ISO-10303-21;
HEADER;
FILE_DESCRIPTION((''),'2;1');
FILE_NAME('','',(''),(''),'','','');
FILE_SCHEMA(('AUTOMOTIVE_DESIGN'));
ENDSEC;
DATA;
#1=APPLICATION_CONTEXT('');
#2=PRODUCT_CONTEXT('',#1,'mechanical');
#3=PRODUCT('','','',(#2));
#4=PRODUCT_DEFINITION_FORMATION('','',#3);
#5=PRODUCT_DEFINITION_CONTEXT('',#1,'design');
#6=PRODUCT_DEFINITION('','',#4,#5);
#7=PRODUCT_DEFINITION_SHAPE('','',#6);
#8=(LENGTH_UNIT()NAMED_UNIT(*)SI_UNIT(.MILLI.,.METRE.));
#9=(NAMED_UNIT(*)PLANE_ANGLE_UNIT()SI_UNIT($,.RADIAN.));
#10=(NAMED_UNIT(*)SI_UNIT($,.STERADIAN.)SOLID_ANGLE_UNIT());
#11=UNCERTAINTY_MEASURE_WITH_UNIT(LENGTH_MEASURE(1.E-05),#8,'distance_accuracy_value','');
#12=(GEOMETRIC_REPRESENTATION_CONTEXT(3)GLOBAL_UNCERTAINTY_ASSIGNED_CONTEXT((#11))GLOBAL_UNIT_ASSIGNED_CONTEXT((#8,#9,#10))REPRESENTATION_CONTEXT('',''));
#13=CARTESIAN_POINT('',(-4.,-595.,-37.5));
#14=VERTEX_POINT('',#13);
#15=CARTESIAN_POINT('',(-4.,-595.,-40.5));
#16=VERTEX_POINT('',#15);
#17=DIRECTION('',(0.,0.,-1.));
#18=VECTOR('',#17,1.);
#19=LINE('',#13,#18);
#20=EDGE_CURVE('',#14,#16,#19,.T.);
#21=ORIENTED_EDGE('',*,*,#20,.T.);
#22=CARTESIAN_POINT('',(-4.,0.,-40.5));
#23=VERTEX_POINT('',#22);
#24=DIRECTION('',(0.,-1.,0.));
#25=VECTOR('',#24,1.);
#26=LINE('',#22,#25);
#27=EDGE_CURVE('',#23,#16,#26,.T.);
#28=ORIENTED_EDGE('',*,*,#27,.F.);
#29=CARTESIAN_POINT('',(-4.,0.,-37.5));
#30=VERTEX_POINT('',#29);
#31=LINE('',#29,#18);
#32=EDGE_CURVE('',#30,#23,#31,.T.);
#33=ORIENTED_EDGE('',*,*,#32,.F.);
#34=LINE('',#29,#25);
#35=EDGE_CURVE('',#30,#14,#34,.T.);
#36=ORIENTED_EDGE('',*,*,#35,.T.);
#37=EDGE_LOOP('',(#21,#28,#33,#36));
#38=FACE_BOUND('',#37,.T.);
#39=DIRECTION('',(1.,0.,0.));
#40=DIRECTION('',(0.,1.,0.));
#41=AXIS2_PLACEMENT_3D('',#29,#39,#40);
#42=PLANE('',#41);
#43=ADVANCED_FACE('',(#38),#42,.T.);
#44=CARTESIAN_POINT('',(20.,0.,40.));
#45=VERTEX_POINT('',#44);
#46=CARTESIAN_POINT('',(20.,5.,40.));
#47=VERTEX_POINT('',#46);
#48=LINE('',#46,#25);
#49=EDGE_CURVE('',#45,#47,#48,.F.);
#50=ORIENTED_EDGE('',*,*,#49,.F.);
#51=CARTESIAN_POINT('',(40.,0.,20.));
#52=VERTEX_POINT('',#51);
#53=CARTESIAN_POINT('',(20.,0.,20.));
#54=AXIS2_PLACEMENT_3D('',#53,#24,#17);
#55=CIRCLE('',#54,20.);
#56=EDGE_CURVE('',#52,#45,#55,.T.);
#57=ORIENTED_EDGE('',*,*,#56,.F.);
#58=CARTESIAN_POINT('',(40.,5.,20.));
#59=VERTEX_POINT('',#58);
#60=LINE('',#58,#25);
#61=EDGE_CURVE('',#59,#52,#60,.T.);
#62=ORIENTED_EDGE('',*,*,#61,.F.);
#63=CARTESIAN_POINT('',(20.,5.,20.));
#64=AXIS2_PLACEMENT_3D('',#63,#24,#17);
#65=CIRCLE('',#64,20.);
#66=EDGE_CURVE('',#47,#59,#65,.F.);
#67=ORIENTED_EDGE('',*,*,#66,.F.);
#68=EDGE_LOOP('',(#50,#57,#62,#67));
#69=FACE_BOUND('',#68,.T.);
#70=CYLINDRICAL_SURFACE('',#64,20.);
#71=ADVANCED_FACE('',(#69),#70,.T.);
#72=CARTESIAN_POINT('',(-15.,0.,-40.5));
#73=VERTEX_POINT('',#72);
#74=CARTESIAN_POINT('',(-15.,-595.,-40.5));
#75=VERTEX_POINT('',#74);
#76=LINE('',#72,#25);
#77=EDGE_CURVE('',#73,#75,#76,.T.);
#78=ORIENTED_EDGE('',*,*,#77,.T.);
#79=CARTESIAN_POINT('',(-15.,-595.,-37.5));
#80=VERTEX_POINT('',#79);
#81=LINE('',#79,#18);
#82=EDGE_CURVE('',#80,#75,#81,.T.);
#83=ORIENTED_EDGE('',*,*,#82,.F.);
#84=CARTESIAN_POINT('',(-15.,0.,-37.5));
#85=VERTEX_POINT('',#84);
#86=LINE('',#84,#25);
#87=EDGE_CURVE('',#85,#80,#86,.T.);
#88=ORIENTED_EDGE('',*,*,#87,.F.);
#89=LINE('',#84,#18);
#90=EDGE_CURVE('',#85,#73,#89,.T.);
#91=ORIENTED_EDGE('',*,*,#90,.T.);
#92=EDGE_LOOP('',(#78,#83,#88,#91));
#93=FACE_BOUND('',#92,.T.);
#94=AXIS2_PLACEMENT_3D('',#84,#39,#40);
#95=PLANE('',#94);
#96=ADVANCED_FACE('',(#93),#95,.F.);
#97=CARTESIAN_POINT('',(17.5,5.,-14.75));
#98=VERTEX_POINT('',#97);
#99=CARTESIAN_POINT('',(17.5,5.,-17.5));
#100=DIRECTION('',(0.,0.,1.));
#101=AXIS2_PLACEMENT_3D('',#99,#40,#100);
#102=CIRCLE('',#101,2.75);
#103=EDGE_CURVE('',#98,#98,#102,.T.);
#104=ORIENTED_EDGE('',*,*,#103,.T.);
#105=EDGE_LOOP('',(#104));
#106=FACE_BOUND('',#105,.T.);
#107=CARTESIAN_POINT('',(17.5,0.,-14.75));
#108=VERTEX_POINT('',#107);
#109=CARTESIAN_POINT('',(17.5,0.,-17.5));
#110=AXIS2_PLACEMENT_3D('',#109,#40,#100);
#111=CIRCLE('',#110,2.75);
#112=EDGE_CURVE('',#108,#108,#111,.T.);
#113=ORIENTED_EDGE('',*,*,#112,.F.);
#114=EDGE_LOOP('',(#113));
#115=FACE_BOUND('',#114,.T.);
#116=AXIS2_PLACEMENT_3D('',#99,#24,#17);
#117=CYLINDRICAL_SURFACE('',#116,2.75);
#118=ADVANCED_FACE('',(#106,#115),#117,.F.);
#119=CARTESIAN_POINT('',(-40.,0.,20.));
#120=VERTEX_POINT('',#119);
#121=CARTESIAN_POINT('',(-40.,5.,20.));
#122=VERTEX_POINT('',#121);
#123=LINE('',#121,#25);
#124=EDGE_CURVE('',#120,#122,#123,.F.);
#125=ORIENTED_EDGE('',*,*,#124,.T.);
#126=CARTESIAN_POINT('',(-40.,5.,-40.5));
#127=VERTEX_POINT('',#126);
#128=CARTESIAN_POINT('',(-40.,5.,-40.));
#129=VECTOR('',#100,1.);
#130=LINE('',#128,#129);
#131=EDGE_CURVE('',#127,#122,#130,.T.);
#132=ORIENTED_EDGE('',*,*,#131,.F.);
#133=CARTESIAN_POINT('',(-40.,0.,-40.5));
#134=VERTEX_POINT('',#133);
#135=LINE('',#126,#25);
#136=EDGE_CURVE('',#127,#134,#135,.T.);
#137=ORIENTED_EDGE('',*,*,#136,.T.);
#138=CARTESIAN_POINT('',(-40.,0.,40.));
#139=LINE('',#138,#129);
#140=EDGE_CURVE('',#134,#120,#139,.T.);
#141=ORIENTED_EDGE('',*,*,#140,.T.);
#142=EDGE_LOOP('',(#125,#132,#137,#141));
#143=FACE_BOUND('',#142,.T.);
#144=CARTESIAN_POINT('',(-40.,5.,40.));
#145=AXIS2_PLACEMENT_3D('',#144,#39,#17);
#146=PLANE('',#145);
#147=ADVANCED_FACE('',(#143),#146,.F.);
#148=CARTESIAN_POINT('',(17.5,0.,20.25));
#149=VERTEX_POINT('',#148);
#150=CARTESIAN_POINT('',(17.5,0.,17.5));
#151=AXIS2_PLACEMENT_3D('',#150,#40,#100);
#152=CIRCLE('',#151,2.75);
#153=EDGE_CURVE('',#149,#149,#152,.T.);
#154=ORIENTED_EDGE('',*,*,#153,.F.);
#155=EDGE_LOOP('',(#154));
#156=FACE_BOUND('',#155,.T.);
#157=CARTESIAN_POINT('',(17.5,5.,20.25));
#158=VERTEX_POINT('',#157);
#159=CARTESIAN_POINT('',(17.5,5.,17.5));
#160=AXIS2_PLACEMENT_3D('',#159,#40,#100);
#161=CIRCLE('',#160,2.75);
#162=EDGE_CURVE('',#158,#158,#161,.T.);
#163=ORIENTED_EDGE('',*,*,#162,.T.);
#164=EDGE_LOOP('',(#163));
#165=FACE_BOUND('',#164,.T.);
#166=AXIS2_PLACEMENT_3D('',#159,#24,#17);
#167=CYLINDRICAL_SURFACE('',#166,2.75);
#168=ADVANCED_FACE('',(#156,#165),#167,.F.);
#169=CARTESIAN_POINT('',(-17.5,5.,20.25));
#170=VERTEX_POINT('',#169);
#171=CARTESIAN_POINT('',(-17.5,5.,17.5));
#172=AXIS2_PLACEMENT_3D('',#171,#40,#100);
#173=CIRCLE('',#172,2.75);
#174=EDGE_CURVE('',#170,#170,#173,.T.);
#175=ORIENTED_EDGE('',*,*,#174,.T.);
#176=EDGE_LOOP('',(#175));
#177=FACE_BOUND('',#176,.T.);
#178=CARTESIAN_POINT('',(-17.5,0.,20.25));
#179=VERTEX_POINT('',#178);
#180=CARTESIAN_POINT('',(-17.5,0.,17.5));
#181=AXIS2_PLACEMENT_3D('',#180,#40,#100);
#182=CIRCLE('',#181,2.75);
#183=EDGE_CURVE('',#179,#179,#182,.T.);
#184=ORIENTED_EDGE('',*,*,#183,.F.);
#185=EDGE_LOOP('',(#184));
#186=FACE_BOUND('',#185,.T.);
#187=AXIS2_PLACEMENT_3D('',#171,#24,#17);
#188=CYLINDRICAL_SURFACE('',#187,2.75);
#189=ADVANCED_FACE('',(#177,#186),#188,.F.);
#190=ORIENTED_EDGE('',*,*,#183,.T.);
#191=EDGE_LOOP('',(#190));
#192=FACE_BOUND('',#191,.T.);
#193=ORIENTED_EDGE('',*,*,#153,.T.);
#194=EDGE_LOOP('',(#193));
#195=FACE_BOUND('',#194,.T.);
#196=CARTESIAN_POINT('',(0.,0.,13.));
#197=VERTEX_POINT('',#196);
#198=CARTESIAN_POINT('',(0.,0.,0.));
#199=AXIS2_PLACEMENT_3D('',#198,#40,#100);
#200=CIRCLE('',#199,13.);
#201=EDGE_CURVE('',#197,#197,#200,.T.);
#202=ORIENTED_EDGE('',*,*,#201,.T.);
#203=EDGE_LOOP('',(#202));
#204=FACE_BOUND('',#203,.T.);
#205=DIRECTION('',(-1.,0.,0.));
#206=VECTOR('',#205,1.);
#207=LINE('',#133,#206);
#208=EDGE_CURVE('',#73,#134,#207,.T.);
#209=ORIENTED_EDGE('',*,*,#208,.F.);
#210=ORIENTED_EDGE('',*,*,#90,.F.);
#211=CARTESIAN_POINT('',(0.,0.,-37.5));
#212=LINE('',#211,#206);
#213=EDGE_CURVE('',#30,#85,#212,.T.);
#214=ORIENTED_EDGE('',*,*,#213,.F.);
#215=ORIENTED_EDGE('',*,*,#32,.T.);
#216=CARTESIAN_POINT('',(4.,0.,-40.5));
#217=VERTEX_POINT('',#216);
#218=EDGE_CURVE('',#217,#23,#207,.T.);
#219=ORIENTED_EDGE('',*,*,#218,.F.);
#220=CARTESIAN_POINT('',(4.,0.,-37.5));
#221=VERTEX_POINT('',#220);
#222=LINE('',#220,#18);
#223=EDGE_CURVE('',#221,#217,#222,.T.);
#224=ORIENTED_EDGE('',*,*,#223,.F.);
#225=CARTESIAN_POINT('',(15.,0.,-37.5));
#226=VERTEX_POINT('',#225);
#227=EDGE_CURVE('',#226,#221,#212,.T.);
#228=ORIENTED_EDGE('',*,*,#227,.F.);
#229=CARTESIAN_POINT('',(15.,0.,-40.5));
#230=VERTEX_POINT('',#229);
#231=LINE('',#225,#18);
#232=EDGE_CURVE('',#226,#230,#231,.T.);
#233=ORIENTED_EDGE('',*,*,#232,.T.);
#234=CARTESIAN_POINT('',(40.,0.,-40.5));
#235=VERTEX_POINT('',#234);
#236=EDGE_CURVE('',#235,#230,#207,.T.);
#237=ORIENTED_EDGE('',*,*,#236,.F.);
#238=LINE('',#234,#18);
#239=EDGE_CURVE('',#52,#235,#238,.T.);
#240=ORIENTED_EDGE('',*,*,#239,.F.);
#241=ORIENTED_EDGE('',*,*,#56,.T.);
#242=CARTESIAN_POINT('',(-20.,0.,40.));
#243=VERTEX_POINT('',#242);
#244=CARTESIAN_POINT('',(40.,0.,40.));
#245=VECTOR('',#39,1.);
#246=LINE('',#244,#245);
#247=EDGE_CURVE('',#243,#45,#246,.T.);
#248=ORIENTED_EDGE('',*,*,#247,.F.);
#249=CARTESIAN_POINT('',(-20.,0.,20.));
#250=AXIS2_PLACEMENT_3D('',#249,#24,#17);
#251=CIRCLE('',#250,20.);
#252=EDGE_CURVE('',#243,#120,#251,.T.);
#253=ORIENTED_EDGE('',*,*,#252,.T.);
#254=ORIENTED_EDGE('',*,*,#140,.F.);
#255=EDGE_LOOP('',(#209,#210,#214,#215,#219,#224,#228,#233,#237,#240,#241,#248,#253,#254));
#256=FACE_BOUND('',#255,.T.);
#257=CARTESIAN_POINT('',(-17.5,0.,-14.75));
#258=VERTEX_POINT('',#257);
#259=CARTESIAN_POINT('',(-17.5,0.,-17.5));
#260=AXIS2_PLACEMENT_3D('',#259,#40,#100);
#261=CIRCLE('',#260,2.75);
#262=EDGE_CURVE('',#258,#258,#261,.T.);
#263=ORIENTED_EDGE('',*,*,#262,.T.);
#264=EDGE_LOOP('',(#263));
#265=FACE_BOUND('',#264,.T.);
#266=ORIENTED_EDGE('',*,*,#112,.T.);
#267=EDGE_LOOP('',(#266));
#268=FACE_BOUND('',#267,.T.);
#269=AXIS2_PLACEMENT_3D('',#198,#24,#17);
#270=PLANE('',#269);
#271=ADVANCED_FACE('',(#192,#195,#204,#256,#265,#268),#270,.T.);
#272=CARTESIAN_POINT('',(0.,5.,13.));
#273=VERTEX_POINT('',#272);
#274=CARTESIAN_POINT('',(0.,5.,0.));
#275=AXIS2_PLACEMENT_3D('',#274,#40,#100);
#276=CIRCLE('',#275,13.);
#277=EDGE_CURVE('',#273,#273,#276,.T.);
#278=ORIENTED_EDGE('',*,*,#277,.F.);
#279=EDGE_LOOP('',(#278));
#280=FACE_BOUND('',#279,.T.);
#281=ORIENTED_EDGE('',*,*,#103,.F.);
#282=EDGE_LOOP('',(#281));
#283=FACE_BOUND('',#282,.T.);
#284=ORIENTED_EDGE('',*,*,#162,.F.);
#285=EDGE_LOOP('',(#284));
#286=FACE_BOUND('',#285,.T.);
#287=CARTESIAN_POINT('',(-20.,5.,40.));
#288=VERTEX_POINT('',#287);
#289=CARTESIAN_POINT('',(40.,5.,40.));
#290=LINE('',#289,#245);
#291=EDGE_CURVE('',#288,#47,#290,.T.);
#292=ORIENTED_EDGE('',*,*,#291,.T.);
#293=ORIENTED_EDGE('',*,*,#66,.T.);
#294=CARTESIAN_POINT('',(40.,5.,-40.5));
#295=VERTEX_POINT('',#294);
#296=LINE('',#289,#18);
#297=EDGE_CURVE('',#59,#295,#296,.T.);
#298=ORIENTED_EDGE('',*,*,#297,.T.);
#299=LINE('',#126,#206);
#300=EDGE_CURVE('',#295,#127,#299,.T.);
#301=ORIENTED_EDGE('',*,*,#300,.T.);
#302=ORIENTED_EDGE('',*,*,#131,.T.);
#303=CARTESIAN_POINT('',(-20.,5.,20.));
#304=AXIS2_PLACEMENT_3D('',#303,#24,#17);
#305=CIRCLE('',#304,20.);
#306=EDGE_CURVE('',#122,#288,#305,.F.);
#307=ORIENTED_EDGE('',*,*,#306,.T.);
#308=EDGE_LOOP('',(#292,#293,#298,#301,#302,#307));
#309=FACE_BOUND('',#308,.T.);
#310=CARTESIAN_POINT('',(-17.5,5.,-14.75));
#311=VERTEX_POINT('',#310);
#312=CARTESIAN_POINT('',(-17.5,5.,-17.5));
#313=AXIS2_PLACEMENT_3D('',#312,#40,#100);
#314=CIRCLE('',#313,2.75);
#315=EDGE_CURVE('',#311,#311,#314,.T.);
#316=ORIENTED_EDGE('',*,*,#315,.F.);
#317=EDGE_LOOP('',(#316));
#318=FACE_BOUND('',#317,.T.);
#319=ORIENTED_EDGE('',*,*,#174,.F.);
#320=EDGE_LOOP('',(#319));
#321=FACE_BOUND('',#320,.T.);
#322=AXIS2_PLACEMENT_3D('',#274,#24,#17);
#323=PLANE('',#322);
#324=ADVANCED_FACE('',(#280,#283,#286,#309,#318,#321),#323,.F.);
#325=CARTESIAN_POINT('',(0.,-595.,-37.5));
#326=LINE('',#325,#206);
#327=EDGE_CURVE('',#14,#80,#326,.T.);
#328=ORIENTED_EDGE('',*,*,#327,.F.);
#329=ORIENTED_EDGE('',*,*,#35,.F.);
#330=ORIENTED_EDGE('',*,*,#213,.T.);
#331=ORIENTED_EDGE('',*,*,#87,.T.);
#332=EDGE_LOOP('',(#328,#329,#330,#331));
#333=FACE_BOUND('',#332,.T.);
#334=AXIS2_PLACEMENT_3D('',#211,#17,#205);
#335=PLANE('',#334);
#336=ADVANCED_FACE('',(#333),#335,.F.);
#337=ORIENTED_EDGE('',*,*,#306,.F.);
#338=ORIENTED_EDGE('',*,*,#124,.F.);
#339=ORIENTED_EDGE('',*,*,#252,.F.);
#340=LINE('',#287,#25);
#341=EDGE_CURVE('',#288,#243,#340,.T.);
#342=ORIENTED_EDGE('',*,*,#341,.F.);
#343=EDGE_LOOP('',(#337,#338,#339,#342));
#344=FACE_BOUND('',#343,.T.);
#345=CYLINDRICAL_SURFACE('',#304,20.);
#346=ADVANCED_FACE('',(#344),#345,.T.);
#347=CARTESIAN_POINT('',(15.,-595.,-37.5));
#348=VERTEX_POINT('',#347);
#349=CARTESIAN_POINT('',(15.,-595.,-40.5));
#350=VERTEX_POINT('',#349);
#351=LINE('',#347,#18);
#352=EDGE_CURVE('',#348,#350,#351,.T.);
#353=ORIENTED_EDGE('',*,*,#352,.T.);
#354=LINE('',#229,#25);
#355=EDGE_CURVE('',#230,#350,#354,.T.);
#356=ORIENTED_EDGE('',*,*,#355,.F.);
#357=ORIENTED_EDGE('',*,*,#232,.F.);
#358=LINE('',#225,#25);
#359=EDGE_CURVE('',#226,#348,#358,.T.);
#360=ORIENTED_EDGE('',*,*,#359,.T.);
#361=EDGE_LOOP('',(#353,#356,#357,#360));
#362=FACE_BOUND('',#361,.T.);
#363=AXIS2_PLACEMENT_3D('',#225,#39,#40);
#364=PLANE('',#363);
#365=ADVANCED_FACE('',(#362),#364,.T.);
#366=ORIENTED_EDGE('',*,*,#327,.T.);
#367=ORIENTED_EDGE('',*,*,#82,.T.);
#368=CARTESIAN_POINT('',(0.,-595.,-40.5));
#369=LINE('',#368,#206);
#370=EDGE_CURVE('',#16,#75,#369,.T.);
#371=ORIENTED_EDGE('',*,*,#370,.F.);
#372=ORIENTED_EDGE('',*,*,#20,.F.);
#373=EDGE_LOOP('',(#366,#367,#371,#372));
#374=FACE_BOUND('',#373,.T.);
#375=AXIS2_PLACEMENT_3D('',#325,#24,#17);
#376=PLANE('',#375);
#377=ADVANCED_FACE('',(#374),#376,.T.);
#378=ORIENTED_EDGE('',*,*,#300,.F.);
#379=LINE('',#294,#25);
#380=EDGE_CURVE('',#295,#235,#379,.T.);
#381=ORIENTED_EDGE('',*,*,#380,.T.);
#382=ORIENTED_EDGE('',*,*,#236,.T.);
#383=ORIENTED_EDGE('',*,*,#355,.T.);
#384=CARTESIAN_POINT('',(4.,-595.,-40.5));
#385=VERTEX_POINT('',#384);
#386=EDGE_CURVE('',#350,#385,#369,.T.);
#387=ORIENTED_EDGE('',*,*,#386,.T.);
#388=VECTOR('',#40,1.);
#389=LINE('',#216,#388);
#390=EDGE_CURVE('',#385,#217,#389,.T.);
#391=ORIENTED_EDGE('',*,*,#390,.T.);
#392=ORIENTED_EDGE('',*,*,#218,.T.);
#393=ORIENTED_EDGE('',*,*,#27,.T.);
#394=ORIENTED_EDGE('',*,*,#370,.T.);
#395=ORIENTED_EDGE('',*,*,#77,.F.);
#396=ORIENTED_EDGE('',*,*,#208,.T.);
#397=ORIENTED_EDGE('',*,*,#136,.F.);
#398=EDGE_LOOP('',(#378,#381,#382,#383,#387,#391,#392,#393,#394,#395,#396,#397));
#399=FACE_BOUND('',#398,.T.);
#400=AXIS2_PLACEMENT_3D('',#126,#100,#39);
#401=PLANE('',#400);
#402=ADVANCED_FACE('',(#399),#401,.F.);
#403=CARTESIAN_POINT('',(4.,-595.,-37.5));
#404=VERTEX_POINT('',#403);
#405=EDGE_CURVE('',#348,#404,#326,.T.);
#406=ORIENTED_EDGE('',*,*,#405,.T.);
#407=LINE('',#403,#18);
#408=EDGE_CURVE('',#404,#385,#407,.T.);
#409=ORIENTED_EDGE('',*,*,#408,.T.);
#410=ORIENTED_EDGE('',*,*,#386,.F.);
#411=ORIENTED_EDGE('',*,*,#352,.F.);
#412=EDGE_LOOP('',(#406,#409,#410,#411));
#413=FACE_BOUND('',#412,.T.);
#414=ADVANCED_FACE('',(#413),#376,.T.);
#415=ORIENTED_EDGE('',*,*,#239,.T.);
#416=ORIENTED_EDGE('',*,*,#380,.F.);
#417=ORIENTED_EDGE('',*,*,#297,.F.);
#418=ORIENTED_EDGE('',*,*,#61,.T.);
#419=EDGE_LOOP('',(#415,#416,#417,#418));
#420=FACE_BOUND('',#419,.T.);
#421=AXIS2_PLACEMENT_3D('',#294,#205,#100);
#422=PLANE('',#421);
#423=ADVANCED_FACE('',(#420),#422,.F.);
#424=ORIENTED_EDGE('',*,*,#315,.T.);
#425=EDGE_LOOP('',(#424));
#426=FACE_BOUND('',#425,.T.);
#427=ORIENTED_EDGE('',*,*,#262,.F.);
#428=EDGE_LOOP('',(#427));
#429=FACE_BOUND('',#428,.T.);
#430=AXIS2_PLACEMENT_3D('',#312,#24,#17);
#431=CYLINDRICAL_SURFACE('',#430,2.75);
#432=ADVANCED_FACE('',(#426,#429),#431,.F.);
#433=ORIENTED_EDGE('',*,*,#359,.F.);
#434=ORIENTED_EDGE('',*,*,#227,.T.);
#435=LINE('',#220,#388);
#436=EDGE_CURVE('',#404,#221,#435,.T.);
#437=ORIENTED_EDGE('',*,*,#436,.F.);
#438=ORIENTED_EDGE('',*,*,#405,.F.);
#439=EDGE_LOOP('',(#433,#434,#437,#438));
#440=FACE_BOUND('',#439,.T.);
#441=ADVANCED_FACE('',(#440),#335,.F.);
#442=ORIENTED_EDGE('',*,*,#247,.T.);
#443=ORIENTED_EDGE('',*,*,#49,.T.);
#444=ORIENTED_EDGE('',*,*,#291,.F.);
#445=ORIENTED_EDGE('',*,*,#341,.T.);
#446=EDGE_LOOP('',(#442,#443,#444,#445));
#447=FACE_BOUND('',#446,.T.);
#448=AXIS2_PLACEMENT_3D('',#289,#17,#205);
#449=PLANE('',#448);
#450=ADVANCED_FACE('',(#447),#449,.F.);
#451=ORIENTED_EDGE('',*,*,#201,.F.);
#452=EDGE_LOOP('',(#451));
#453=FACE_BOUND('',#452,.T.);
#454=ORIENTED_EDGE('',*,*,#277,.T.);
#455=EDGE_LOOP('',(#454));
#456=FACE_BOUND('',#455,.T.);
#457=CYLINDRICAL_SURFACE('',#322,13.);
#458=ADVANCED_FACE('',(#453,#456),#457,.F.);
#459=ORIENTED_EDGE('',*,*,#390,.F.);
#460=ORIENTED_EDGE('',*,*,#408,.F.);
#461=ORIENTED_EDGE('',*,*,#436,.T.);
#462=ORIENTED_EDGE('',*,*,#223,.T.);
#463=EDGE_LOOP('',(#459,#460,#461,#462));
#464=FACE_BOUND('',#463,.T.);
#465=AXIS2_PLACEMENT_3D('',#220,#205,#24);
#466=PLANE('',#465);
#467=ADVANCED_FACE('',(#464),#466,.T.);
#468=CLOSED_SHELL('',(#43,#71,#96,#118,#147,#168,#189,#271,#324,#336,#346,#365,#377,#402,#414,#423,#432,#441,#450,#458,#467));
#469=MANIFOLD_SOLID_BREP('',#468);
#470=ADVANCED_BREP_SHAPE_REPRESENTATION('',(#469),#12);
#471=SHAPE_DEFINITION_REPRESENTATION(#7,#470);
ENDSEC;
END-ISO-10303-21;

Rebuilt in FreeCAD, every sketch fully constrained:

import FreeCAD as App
import Part
import Sketcher

V = App.Vector


def edges_at(feature, points):
    """Names of the edges that pass closest to the given points."""
    edges = feature.Shape.Edges
    near = lambda p: min(range(len(edges)), key=lambda i: edges[i].distToShape(Part.Vertex(*p))[0])
    return sorted({f"Edge{near(p) + 1}" for p in points})


def add_polygon(sketch, points):
    """Adds a closed chain of lines whose ends are joined by coincident constraints."""
    first, n = sketch.GeometryCount, len(points)
    for a, b in zip(points, points[1:] + points[:1]):
        sketch.addGeometry(Part.LineSegment(App.Vector(*a, 0), App.Vector(*b, 0)), False)
    for i in range(n):
        sketch.addConstraint(Sketcher.Constraint("Coincident", first + i, 2, first + (i + 1) % n, 1))

doc = App.newDocument("Part")
body = doc.addObject("PartDesign::Body", "Body")

# Sketch on XZ plane
sketch1 = body.newObject("Sketcher::SketchObject", "Sketch")
sketch1.AttachmentSupport = (doc.getObject("XZ_Plane"), [""])
sketch1.MapMode = "FlatFace"
add_polygon(sketch1, [(-40, 40), (40, 40), (40, -40.5), (-40, -40.5)])  # lines 0-3
sketch1.addGeometry(Part.Circle(V(17.5, 17.5, 0), V(0, 0, 1), 2.75), False)  # 4
sketch1.addGeometry(Part.Circle(V(-17.5, 17.5, 0), V(0, 0, 1), 2.75), False)  # 5
sketch1.addGeometry(Part.Circle(V(17.5, -17.5, 0), V(0, 0, 1), 2.75), False)  # 6
sketch1.addGeometry(Part.Circle(V(0, 0, 0), V(0, 0, 1), 13), False)  # 7
sketch1.addGeometry(Part.Circle(V(-17.5, -17.5, 0), V(0, 0, 1), 2.75), False)  # 8
sketch1.addConstraint([
    Sketcher.Constraint("Horizontal", 0),
    Sketcher.Constraint("Vertical", 1),
    Sketcher.Constraint("Horizontal", 2),
    Sketcher.Constraint("Vertical", 3),
    Sketcher.Constraint("Coincident", 7, 3, -1, 1),
    Sketcher.Constraint("Equal", 4, 5),
    Sketcher.Constraint("Equal", 5, 6),
    Sketcher.Constraint("Equal", 6, 8),
    Sketcher.Constraint("Symmetric", 5, 3, 6, 3, -1, 1),
    Sketcher.Constraint("Symmetric", 4, 3, 8, 3, -1, 1),
    Sketcher.Constraint("Symmetric", 4, 3, 5, 3, -2),
    Sketcher.Constraint("Diameter", 7, 26.0),
    Sketcher.Constraint("Diameter", 4, 5.5),
    Sketcher.Constraint("DistanceX", 0, 1, 0, 2, 80.0),
    Sketcher.Constraint("DistanceY", 1, 2, 1, 1, 80.5),
    Sketcher.Constraint("DistanceX", -1, 1, 0, 2, 40.0),
    Sketcher.Constraint("DistanceY", -1, 1, 0, 2, 40.0),
    Sketcher.Constraint("DistanceX", 5, 3, 4, 3, 35.0),
    Sketcher.Constraint("DistanceY", 6, 3, 4, 3, 35.0),
])
pad1 = body.newObject("PartDesign::Pad", "Pad")
pad1.Profile = sketch1
pad1.Length = 5
pad1.Reversed = True

# Sketch on XY plane
sketch2 = body.newObject("Sketcher::SketchObject", "Sketch001")
sketch2.AttachmentSupport = (doc.getObject("XY_Plane"), [""])
sketch2.MapMode = "FlatFace"
sketch2.AttachmentOffset = App.Placement(V(0, 0, -40.5), App.Rotation())
add_polygon(sketch2, [(-4, 5), (-4, -595), (-15, -595), (-15, 5)])  # lines 0-3
add_polygon(sketch2, [(15, 5), (15, -595), (4, -595), (4, 5)])  # lines 4-7
sketch2.addConstraint([
    Sketcher.Constraint("Vertical", 0),
    Sketcher.Constraint("Horizontal", 1),
    Sketcher.Constraint("Vertical", 2),
    Sketcher.Constraint("Horizontal", 3),
    Sketcher.Constraint("Vertical", 4),
    Sketcher.Constraint("Horizontal", 5),
    Sketcher.Constraint("Vertical", 6),
    Sketcher.Constraint("Horizontal", 7),
    Sketcher.Constraint("Symmetric", 1, 2, 4, 2, -2),
    Sketcher.Constraint("Symmetric", 3, 2, 6, 2, -2),
    Sketcher.Constraint("DistanceX", 1, 2, 1, 1, 11.0),
    Sketcher.Constraint("DistanceY", 0, 2, 0, 1, 600.0),
    Sketcher.Constraint("DistanceX", 0, 2, -1, 1, 4.0),
    Sketcher.Constraint("DistanceY", 0, 2, -1, 1, 595.0),
])
pad2 = body.newObject("PartDesign::Pad", "Pad001")
pad2.Profile = sketch2
pad2.Length = 3
doc.recompute()

fillet = body.newObject("PartDesign::Fillet", "Fillet")
fillet.Base = (pad2, edges_at(pad2, [(40, 2.5, 40), (-40, 2.5, 40)]))
fillet.Radius = 20

doc.recompute()
